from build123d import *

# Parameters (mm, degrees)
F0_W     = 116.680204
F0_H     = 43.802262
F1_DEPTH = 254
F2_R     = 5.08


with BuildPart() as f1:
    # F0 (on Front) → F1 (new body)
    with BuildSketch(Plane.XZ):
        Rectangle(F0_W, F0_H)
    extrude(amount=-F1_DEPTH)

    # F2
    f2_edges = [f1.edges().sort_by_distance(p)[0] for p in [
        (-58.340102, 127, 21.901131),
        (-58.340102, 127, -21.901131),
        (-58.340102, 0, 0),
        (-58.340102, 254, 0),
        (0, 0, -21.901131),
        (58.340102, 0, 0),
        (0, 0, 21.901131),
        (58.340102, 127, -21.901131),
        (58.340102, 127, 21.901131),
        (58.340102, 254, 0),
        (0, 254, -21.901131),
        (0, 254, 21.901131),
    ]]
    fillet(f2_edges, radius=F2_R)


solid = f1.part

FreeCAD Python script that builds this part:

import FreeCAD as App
import Part
import Sketcher

V = App.Vector
Q = App.Units.Quantity

doc = App.newDocument("Part")
body = doc.addObject("PartDesign::Body", "Body")

# Sketch on XZ plane
sketch1 = body.newObject("Sketcher::SketchObject", "Sketch")
sketch1.AttachmentSupport = (doc.getObject("XZ_Plane"), [""])
sketch1.MapMode = "FlatFace"
sketch1.addGeometry(Part.LineSegment(V(-58, 22, 0), V(-58, -22, 0)), False)
sketch1.addGeometry(Part.LineSegment(V(-58, -22, 0), V(58, -22, 0)), False)
sketch1.addGeometry(Part.LineSegment(V(58, -22, 0), V(58, 22, 0)), False)
sketch1.addGeometry(Part.LineSegment(V(58, 22, 0), V(-58, 22, 0)), False)
sketch1.addConstraint(Sketcher.Constraint("Coincident", 0, 2, 1, 1))
sketch1.addConstraint(Sketcher.Constraint("Coincident", 1, 2, 2, 1))
sketch1.addConstraint(Sketcher.Constraint("Coincident", 2, 2, 3, 1))
sketch1.addConstraint(Sketcher.Constraint("Coincident", 3, 2, 0, 1))
sketch1.addConstraint(Sketcher.Constraint("Vertical", 0))
sketch1.addConstraint(Sketcher.Constraint("Horizontal", 1))
sketch1.addConstraint(Sketcher.Constraint("Vertical", 2))
sketch1.addConstraint(Sketcher.Constraint("Horizontal", 3))
sketch1.addConstraint(Sketcher.Constraint("Symmetric", 0, 2, 2, 2, -1, 1))
sketch1.addConstraint(Sketcher.Constraint("DistanceX", 1, 1, 1, 2, 116.680204))
sketch1.addConstraint(Sketcher.Constraint("DistanceY", 0, 2, 0, 1, 43.802262))
pad1 = body.newObject("PartDesign::Pad", "Pad")
pad1.Profile = sketch1
pad1.Length = Q("10 in")
pad1.Reversed = True
doc.recompute()

fillet = body.newObject("PartDesign::Fillet", "Fillet")
fillet.Base = (pad1, ["Edge1"])
fillet.UseAllEdges = True
fillet.Radius = Q("0.2 in")

doc.recompute()
